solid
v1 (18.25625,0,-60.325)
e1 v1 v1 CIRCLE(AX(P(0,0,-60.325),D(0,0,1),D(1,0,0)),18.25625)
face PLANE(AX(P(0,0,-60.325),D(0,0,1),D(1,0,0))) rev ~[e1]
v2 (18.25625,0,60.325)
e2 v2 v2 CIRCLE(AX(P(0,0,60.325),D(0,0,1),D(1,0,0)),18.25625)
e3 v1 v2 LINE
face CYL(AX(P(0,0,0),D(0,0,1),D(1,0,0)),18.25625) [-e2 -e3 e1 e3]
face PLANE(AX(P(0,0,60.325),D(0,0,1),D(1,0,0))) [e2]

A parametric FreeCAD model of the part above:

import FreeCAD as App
import Part
import Sketcher
Q = App.Units.Quantity

doc = App.newDocument("Part")
body = doc.addObject("PartDesign::Body", "Body")

# Sketch on XY plane
sketch1 = body.newObject("Sketcher::SketchObject", "Sketch")
sketch1.AttachmentSupport = (doc.getObject("XY_Plane"), [""])
sketch1.MapMode = "FlatFace"
sketch1.addGeometry(Part.Circle(App.Vector(0, 0, 0), App.Vector(0, 0, 1), 18.25625), False)
sketch1.addConstraint(Sketcher.Constraint("Coincident", 0, 3, -1, 1))
sketch1.addConstraint(Sketcher.Constraint("Diameter", 0, Q("1.4375 in")))
pad1 = body.newObject("PartDesign::Pad", "Pad")
pad1.Profile = sketch1
pad1.Length = Q("4.75 in")
pad1.Midplane = True

doc.recompute()
